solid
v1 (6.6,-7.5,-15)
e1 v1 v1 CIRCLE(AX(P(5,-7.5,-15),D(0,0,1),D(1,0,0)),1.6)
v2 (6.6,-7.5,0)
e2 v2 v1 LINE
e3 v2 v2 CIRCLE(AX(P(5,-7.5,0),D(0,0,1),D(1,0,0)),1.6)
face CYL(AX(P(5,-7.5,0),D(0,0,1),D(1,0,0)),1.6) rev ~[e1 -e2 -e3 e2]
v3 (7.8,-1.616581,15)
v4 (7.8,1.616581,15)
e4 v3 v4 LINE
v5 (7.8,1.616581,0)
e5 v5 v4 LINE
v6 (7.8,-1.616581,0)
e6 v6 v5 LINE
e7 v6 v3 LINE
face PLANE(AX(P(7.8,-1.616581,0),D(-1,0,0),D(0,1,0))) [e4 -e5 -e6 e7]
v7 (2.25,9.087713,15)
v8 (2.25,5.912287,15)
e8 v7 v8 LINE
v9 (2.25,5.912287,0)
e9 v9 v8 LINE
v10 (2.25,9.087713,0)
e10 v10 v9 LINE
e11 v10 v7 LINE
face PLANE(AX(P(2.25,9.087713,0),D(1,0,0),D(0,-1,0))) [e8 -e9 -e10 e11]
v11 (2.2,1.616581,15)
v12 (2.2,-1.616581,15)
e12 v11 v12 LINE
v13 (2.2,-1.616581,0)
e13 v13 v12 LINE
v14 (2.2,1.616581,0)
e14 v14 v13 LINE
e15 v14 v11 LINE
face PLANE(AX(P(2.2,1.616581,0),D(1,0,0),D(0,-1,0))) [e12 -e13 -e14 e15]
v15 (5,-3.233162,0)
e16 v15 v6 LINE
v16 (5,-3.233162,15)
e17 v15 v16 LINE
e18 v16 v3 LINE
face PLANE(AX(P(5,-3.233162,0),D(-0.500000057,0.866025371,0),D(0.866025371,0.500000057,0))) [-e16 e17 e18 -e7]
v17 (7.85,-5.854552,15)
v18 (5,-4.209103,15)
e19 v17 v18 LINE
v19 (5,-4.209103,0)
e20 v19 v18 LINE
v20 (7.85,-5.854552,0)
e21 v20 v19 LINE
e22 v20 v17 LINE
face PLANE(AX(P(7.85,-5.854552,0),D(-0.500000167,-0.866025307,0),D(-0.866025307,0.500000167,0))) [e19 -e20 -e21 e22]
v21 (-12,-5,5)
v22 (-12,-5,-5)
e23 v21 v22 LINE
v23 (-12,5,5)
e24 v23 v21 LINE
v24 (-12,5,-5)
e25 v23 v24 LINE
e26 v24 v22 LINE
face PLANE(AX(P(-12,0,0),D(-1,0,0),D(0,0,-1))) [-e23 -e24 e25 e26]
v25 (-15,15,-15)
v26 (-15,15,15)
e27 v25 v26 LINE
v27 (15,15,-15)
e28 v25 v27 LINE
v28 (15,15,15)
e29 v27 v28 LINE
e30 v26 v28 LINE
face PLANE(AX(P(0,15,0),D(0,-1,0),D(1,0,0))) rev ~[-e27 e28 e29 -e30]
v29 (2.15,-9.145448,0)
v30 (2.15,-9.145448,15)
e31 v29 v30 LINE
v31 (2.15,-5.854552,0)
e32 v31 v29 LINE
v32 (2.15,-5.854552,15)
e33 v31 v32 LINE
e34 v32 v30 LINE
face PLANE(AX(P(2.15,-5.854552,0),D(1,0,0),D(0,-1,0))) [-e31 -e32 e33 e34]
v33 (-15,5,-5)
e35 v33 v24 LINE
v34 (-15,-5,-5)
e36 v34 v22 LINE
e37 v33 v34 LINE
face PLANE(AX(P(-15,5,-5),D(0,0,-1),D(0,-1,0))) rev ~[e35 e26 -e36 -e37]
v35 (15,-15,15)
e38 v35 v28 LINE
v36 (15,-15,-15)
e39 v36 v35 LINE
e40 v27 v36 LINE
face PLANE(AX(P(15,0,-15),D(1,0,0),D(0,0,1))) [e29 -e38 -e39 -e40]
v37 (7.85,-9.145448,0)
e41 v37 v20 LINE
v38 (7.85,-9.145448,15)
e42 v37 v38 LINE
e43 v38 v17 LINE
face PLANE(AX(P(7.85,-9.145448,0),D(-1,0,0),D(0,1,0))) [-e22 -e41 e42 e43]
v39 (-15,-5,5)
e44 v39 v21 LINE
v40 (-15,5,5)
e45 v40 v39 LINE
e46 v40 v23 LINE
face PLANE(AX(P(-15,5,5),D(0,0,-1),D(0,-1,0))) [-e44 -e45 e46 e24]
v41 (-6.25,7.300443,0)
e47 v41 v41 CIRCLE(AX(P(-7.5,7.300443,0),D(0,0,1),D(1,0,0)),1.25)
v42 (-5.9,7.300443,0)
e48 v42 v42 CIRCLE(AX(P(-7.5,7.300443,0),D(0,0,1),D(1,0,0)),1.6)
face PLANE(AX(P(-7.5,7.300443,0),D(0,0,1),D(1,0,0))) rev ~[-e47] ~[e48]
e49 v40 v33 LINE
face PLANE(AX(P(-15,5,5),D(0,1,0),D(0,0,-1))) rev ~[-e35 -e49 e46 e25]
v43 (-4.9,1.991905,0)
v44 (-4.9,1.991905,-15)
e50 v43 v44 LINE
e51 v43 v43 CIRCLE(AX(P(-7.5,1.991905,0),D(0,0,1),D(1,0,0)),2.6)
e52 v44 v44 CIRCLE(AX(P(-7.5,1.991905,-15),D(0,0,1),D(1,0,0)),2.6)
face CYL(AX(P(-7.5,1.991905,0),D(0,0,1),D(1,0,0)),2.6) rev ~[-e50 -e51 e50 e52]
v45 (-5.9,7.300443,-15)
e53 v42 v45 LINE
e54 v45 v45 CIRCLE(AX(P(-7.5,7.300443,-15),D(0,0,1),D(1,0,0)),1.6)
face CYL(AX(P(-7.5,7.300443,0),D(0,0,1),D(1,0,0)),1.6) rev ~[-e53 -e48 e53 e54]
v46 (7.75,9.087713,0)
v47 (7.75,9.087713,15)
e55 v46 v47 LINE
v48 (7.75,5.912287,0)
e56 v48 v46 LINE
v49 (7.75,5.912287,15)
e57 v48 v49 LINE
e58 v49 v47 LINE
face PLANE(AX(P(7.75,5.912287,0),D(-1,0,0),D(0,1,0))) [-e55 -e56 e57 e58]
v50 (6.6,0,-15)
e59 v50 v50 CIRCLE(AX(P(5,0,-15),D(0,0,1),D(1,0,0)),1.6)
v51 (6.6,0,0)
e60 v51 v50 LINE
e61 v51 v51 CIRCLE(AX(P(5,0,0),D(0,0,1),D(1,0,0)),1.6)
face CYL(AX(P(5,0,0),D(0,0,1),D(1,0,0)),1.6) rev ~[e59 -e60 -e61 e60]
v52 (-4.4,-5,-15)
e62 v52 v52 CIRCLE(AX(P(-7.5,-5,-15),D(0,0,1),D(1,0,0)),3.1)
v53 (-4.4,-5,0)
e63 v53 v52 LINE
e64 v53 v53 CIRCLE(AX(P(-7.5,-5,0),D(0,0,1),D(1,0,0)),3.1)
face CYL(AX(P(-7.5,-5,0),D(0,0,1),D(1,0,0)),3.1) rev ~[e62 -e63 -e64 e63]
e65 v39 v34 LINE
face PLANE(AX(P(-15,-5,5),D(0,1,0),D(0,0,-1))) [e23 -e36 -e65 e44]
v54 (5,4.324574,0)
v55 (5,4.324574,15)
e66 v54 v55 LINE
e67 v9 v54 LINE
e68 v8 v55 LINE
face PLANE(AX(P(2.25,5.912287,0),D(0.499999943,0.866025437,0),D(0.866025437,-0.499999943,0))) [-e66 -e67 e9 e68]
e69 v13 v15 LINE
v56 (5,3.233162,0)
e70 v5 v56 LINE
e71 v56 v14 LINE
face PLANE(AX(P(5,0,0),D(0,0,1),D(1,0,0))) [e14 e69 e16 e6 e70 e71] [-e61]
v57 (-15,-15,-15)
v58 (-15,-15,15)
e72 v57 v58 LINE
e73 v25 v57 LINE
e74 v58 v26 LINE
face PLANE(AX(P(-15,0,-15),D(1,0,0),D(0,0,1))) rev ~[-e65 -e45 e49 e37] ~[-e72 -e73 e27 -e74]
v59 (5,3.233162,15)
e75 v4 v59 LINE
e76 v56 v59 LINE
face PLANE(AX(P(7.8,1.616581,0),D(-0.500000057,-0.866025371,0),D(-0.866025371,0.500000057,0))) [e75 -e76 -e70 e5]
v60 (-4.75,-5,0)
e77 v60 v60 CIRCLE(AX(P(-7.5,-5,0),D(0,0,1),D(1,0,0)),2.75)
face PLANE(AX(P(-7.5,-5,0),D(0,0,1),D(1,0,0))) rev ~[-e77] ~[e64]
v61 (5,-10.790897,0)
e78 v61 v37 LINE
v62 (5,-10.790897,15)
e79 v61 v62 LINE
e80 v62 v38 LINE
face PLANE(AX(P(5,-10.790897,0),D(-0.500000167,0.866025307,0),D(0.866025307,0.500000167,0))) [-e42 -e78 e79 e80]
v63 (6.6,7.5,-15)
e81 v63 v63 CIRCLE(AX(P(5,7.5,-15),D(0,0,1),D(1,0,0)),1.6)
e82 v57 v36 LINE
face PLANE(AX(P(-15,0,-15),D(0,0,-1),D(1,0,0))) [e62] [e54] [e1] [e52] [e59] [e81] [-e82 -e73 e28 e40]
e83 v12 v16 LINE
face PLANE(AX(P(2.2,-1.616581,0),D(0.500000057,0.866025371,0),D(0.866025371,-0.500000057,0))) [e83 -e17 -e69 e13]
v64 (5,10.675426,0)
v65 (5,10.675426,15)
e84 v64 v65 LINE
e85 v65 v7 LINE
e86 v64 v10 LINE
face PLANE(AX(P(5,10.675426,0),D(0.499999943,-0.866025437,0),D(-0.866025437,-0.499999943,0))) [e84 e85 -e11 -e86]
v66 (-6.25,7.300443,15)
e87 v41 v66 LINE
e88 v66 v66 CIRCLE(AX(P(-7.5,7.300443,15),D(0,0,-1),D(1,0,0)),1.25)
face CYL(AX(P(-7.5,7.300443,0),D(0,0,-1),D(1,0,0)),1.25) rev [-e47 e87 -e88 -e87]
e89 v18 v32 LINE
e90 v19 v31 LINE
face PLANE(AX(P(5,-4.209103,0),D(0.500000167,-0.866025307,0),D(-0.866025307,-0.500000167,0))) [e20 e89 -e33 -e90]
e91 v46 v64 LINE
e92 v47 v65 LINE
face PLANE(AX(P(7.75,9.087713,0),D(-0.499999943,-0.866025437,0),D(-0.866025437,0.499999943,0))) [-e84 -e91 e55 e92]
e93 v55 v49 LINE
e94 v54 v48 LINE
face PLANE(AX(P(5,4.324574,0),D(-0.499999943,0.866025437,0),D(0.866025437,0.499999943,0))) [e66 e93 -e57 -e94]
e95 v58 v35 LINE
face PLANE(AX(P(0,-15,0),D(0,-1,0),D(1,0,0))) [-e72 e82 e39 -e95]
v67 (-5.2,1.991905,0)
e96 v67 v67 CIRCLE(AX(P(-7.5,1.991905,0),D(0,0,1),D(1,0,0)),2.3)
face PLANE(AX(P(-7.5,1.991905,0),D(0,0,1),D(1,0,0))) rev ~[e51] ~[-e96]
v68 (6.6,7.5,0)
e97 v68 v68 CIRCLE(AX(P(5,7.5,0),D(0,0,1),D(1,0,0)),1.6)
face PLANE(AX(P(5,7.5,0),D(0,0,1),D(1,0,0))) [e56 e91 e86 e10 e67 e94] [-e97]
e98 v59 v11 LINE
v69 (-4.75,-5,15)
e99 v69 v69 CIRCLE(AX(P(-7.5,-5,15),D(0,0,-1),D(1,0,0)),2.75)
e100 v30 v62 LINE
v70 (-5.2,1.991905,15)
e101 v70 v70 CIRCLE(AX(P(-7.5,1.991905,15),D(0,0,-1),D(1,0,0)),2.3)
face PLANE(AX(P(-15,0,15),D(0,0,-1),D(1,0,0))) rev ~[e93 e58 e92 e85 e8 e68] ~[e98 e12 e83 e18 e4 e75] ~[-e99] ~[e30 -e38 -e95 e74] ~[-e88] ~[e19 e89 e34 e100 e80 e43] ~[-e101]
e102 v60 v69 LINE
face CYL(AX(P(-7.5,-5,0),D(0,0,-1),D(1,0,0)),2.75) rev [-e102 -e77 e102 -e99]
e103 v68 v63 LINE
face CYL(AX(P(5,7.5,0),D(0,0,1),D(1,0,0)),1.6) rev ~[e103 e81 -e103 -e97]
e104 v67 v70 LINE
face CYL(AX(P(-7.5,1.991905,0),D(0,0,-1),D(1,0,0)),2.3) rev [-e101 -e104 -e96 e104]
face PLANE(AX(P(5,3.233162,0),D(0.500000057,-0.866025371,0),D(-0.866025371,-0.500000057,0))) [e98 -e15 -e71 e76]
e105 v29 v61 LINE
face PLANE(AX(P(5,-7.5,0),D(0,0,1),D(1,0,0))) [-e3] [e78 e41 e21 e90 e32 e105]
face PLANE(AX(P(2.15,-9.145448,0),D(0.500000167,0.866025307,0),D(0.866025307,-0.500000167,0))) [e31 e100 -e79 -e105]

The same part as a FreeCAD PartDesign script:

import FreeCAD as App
import Part
import Sketcher
Q = App.Units.Quantity

doc = App.newDocument("Part")
body = doc.addObject("PartDesign::Body", "Body")

# Sketch on XZ plane
sketch1 = doc.addObject("Sketcher::SketchObject", "Sketch")
body.addObject(sketch1)
sketch1.AttachmentSupport = (doc.XZ_Plane, [""])
sketch1.MapMode = "FlatFace"
sketch1.addGeometry(Part.LineSegment(App.Vector(-15, 15, 0), App.Vector(-15, -15, 0)), False)
sketch1.addGeometry(Part.LineSegment(App.Vector(-15, -15, 0), App.Vector(15, -15, 0)), False)
sketch1.addGeometry(Part.LineSegment(App.Vector(15, -15, 0), App.Vector(15, 15, 0)), False)
sketch1.addGeometry(Part.LineSegment(App.Vector(15, 15, 0), App.Vector(-15, 15, 0)), False)
sketch1.addConstraint(Sketcher.Constraint("Coincident", 0, 2, 1, 1))
sketch1.addConstraint(Sketcher.Constraint("Coincident", 1, 2, 2, 1))
sketch1.addConstraint(Sketcher.Constraint("Coincident", 2, 2, 3, 1))
sketch1.addConstraint(Sketcher.Constraint("Coincident", 3, 2, 0, 1))
sketch1.addConstraint(Sketcher.Constraint("Vertical", 0))
sketch1.addConstraint(Sketcher.Constraint("Horizontal", 1))
sketch1.addConstraint(Sketcher.Constraint("Vertical", 2))
sketch1.addConstraint(Sketcher.Constraint("Horizontal", 3))
sketch1.addConstraint(Sketcher.Constraint("Symmetric", 0, 2, 2, 2, -1, 1))
sketch1.addConstraint(Sketcher.Constraint("Equal", 3, 0))
sketch1.addConstraint(Sketcher.Constraint("DistanceX", 1, 1, 1, 2, Q("30 mm")))
pad1 = doc.addObject("PartDesign::Pad", "Pad")
body.addObject(pad1)
pad1.Profile = sketch1
pad1.Length = 30
pad1.Midplane = True

# Sketch on XY plane
sketch2 = doc.addObject("Sketcher::SketchObject", "Sketch001")
body.addObject(sketch2)
sketch2.AttachmentSupport = (doc.XY_Plane, [""])
sketch2.MapMode = "FlatFace"
sketch2.addGeometry(Part.Circle(App.Vector(-7.5, 7.300443, 0), App.Vector(0, 0, 1), 1.6), False)
sketch2.addGeometry(Part.Circle(App.Vector(-7.5, 1.991905, 0), App.Vector(0, 0, 1), 2.6), False)
sketch2.addGeometry(Part.Circle(App.Vector(-7.5, -5, 0), App.Vector(0, 0, 1), 3.1), False)
sketch2.addGeometry(Part.Circle(App.Vector(5, 7.5, 0), App.Vector(0, 0, 1), 1.6), False)
sketch2.addGeometry(Part.Circle(App.Vector(5, 0, 0), App.Vector(0, 0, 1), 1.6), False)
sketch2.addGeometry(Part.Circle(App.Vector(5, -7.5, 0), App.Vector(0, 0, 1), 1.6), False)
sketch2.addConstraint(Sketcher.Constraint("Equal", 0, 3))
sketch2.addConstraint(Sketcher.Constraint("Equal", 3, 4))
sketch2.addConstraint(Sketcher.Constraint("Equal", 4, 5))
sketch2.addConstraint(Sketcher.Constraint("Symmetric", 3, 3, 5, 3, -1))
sketch2.addConstraint(Sketcher.Constraint("PointOnObject", 4, 3, -1))
sketch2.addConstraint(Sketcher.Constraint("Vertical", 0, 3, 1, 3))
sketch2.addConstraint(Sketcher.Constraint("Vertical", 1, 3, 2, 3))
sketch2.addConstraint(Sketcher.Constraint("Vertical", 3, 3, 4, 3))
sketch2.addConstraint(Sketcher.Constraint("Diameter", 0, Q("3.2 mm")))
sketch2.addConstraint(Sketcher.Constraint("Diameter", 1, Q("5.2 mm")))
sketch2.addConstraint(Sketcher.Constraint("Diameter", 2, Q("6.2 mm")))
sketch2.addConstraint(Sketcher.Constraint("DistanceY", 2, 3, -1, 1, Q("5 mm")))
sketch2.addConstraint(Sketcher.Constraint("DistanceX", -1, 1, 3, 3, Q("5 mm")))
sketch2.addConstraint(Sketcher.Constraint("DistanceY", 5, 3, 3, 3, Q("15 mm")))
sketch2.addConstraint(Sketcher.Constraint("DistanceX", 0, 3, -1, 1, Q("7.5 mm")))
sketch2.addConstraint(Sketcher.Constraint("DistanceY", -1, 1, 0, 3, Q("7.300443 mm")))
sketch2.addConstraint(Sketcher.Constraint("DistanceY", -1, 1, 1, 3, Q("1.991905 mm")))
pocket1 = doc.addObject("PartDesign::Pocket", "Pocket")
body.addObject(pocket1)
pocket1.Profile = sketch2
pocket1.Type = "ThroughAll"

# Sketch on XY plane
sketch3 = doc.addObject("Sketcher::SketchObject", "Sketch002")
body.addObject(sketch3)
sketch3.AttachmentSupport = (doc.XY_Plane, [""])
sketch3.MapMode = "FlatFace"
sketch3.addGeometry(Part.Circle(App.Vector(-7.5, 7.300443, 0), App.Vector(0, 0, 1), 1.25), False)
sketch3.addGeometry(Part.Circle(App.Vector(-7.5, 1.991905, 0), App.Vector(0, 0, 1), 2.3), False)
sketch3.addGeometry(Part.Circle(App.Vector(-7.5, -5, 0), App.Vector(0, 0, 1), 2.75), False)
sketch3.addGeometry(Part.LineSegment(App.Vector(7.75, 5.912287, 0), App.Vector(7.75, 9.087713, 0)), False)
sketch3.addGeometry(Part.LineSegment(App.Vector(7.75, 9.087713, 0), App.Vector(5, 10.675426, 0)), False)
sketch3.addGeometry(Part.LineSegment(App.Vector(5, 10.675426, 0), App.Vector(2.25, 9.087713, 0)), False)
sketch3.addGeometry(Part.LineSegment(App.Vector(2.25, 9.087713, 0), App.Vector(2.25, 5.912287, 0)), False)
sketch3.addGeometry(Part.LineSegment(App.Vector(2.25, 5.912287, 0), App.Vector(5, 4.324574, 0)), False)
sketch3.addGeometry(Part.LineSegment(App.Vector(5, 4.324574, 0), App.Vector(7.75, 5.912287, 0)), False)
sketch3.addGeometry(Part.LineSegment(App.Vector(7.8, -1.616581, 0), App.Vector(7.8, 1.616581, 0)), False)
sketch3.addGeometry(Part.LineSegment(App.Vector(7.8, 1.616581, 0), App.Vector(5, 3.233162, 0)), False)
sketch3.addGeometry(Part.LineSegment(App.Vector(5, 3.233162, 0), App.Vector(2.2, 1.616581, 0)), False)
sketch3.addGeometry(Part.LineSegment(App.Vector(2.2, 1.616581, 0), App.Vector(2.2, -1.616581, 0)), False)
sketch3.addGeometry(Part.LineSegment(App.Vector(2.2, -1.616581, 0), App.Vector(5, -3.233162, 0)), False)
sketch3.addGeometry(Part.LineSegment(App.Vector(5, -3.233162, 0), App.Vector(7.8, -1.616581, 0)), False)
sketch3.addGeometry(Part.LineSegment(App.Vector(7.85, -9.145448, 0), App.Vector(7.85, -5.854552, 0)), False)
sketch3.addGeometry(Part.LineSegment(App.Vector(7.85, -5.854552, 0), App.Vector(5, -4.209103, 0)), False)
sketch3.addGeometry(Part.LineSegment(App.Vector(5, -4.209103, 0), App.Vector(2.15, -5.854552, 0)), False)
sketch3.addGeometry(Part.LineSegment(App.Vector(2.15, -5.854552, 0), App.Vector(2.15, -9.145448, 0)), False)
sketch3.addGeometry(Part.LineSegment(App.Vector(2.15, -9.145448, 0), App.Vector(5, -10.790897, 0)), False)
sketch3.addGeometry(Part.LineSegment(App.Vector(5, -10.790897, 0), App.Vector(7.85, -9.145448, 0)), False)
sketch3.addConstraint(Sketcher.Constraint("Coincident", 3, 2, 4, 1))
sketch3.addConstraint(Sketcher.Constraint("Coincident", 4, 2, 5, 1))
sketch3.addConstraint(Sketcher.Constraint("Coincident", 5, 2, 6, 1))
sketch3.addConstraint(Sketcher.Constraint("Coincident", 6, 2, 7, 1))
sketch3.addConstraint(Sketcher.Constraint("Coincident", 7, 2, 8, 1))
sketch3.addConstraint(Sketcher.Constraint("Coincident", 8, 2, 3, 1))
sketch3.addConstraint(Sketcher.Constraint("Coincident", 9, 2, 10, 1))
sketch3.addConstraint(Sketcher.Constraint("Coincident", 10, 2, 11, 1))
sketch3.addConstraint(Sketcher.Constraint("Coincident", 11, 2, 12, 1))
sketch3.addConstraint(Sketcher.Constraint("Coincident", 12, 2, 13, 1))
sketch3.addConstraint(Sketcher.Constraint("Coincident", 13, 2, 14, 1))
sketch3.addConstraint(Sketcher.Constraint("Coincident", 14, 2, 9, 1))
sketch3.addConstraint(Sketcher.Constraint("Coincident", 15, 2, 16, 1))
sketch3.addConstraint(Sketcher.Constraint("Coincident", 16, 2, 17, 1))
sketch3.addConstraint(Sketcher.Constraint("Coincident", 17, 2, 18, 1))
sketch3.addConstraint(Sketcher.Constraint("Coincident", 18, 2, 19, 1))
sketch3.addConstraint(Sketcher.Constraint("Coincident", 19, 2, 20, 1))
sketch3.addConstraint(Sketcher.Constraint("Coincident", 20, 2, 15, 1))
sketch3.addConstraint(Sketcher.Constraint("Vertical", 3))
sketch3.addConstraint(Sketcher.Constraint("Vertical", 6))
sketch3.addConstraint(Sketcher.Constraint("Vertical", 9))
sketch3.addConstraint(Sketcher.Constraint("Vertical", 12))
sketch3.addConstraint(Sketcher.Constraint("Vertical", 15))
sketch3.addConstraint(Sketcher.Constraint("Vertical", 18))
sketch3.addConstraint(Sketcher.Constraint("Symmetric", 10, 2, 13, 2, -1))
sketch3.addConstraint(Sketcher.Constraint("Parallel", 4, 7))
sketch3.addConstraint(Sketcher.Constraint("Parallel", 5, 8))
sketch3.addConstraint(Sketcher.Constraint("Parallel", 7, 10))
sketch3.addConstraint(Sketcher.Constraint("Parallel", 8, 11))
sketch3.addConstraint(Sketcher.Constraint("Parallel", 10, 13))
sketch3.addConstraint(Sketcher.Constraint("Parallel", 11, 14))
sketch3.addConstraint(Sketcher.Constraint("Parallel", 13, 16))
sketch3.addConstraint(Sketcher.Constraint("Parallel", 14, 17))
sketch3.addConstraint(Sketcher.Constraint("Parallel", 16, 19))
sketch3.addConstraint(Sketcher.Constraint("Parallel", 17, 20))
sketch3.addConstraint(Sketcher.Constraint("Horizontal", 3, 2, 5, 2))
sketch3.addConstraint(Sketcher.Constraint("Horizontal", 6, 2, 8, 2))
sketch3.addConstraint(Sketcher.Constraint("Horizontal", 9, 2, 11, 2))
sketch3.addConstraint(Sketcher.Constraint("Horizontal", 12, 2, 14, 2))
sketch3.addConstraint(Sketcher.Constraint("Horizontal", 15, 2, 17, 2))
sketch3.addConstraint(Sketcher.Constraint("Horizontal", 18, 2, 20, 2))
sketch3.addConstraint(Sketcher.Constraint("Vertical", 0, 3, 1, 3))
sketch3.addConstraint(Sketcher.Constraint("Vertical", 1, 3, 2, 3))
sketch3.addConstraint(Sketcher.Constraint("Vertical", 7, 2, 10, 2))
sketch3.addConstraint(Sketcher.Constraint("Vertical", 13, 2, 16, 2))
sketch3.addConstraint(Sketcher.Constraint("Diameter", 0, Q("2.5 mm")))
sketch3.addConstraint(Sketcher.Constraint("Diameter", 1, Q("4.6 mm")))
sketch3.addConstraint(Sketcher.Constraint("Diameter", 2, Q("5.5 mm")))
sketch3.addConstraint(Sketcher.Constraint("Angle", 4, Q("150.000004 deg")))
sketch3.addConstraint(Sketcher.Constraint("DistanceY", 2, 3, -1, 1, Q("5 mm")))
sketch3.addConstraint(Sketcher.Constraint("DistanceX", -1, 1, 4, 2, Q("5 mm")))
sketch3.addConstraint(Sketcher.Constraint("DistanceX", 0, 3, -1, 1, Q("7.5 mm")))
sketch3.addConstraint(Sketcher.Constraint("DistanceX", -1, 1, 9, 2, Q("7.8 mm")))
sketch3.addConstraint(Sketcher.Constraint("DistanceX", 5, 2, 3, 2, Q("5.5 mm")))
sketch3.addConstraint(Sketcher.Constraint("DistanceX", 17, 2, 15, 2, Q("5.7 mm")))
sketch3.addConstraint(Sketcher.Constraint("DistanceY", 3, 1, 3, 2, Q("3.175426 mm")))
sketch3.addConstraint(Sketcher.Constraint("DistanceY", 9, 1, 9, 2, Q("3.233162 mm")))
sketch3.addConstraint(Sketcher.Constraint("DistanceY", 15, 1, 15, 2, Q("3.290896 mm")))
sketch3.addConstraint(Sketcher.Constraint("DistanceY", 0, 3, 3, 2, Q("1.78727 mm")))
sketch3.addConstraint(Sketcher.Constraint("DistanceY", 1, 3, 3, 2, Q("7.095808 mm")))
sketch3.addConstraint(Sketcher.Constraint("DistanceY", 10, 2, 3, 2, Q("5.854551 mm")))
sketch3.addConstraint(Sketcher.Constraint("DistanceY", 15, 2, 13, 2, Q("2.62139 mm")))
pocket2 = doc.addObject("PartDesign::Pocket", "Pocket001")
body.addObject(pocket2)
pocket2.Profile = sketch3
pocket2.Type = "ThroughAll"
pocket2.Reversed = True

# Sketch on YZ plane
sketch4 = doc.addObject("Sketcher::SketchObject", "Sketch003")
body.addObject(sketch4)
sketch4.AttachmentSupport = (doc.YZ_Plane, [""])
sketch4.MapMode = "FlatFace"
sketch4.AttachmentOffset = App.Placement(App.Vector(0, 0, -15), App.Rotation())
sketch4.addGeometry(Part.LineSegment(App.Vector(-5, 5, 0), App.Vector(5, 5, 0)), False)
sketch4.addGeometry(Part.LineSegment(App.Vector(5, 5, 0), App.Vector(5, -5, 0)), False)
sketch4.addGeometry(Part.LineSegment(App.Vector(5, -5, 0), App.Vector(-5, -5, 0)), False)
sketch4.addGeometry(Part.LineSegment(App.Vector(-5, -5, 0), App.Vector(-5, 5, 0)), False)
sketch4.addConstraint(Sketcher.Constraint("Coincident", 0, 2, 1, 1))
sketch4.addConstraint(Sketcher.Constraint("Coincident", 1, 2, 2, 1))
sketch4.addConstraint(Sketcher.Constraint("Coincident", 2, 2, 3, 1))
sketch4.addConstraint(Sketcher.Constraint("Coincident", 3, 2, 0, 1))
sketch4.addConstraint(Sketcher.Constraint("Horizontal", 0))
sketch4.addConstraint(Sketcher.Constraint("Vertical", 1))
sketch4.addConstraint(Sketcher.Constraint("Horizontal", 2))
sketch4.addConstraint(Sketcher.Constraint("Vertical", 3))
sketch4.addConstraint(Sketcher.Constraint("Symmetric", 0, 2, 2, 2, -1, 1))
sketch4.addConstraint(Sketcher.Constraint("Equal", 2, 1))
sketch4.addConstraint(Sketcher.Constraint("DistanceX", 0, 1, 0, 2, Q("10 mm")))
pocket3 = doc.addObject("PartDesign::Pocket", "Pocket002")
body.addObject(pocket3)
pocket3.Profile = sketch4
pocket3.Length = 3
pocket3.Reversed = True

doc.recompute()
